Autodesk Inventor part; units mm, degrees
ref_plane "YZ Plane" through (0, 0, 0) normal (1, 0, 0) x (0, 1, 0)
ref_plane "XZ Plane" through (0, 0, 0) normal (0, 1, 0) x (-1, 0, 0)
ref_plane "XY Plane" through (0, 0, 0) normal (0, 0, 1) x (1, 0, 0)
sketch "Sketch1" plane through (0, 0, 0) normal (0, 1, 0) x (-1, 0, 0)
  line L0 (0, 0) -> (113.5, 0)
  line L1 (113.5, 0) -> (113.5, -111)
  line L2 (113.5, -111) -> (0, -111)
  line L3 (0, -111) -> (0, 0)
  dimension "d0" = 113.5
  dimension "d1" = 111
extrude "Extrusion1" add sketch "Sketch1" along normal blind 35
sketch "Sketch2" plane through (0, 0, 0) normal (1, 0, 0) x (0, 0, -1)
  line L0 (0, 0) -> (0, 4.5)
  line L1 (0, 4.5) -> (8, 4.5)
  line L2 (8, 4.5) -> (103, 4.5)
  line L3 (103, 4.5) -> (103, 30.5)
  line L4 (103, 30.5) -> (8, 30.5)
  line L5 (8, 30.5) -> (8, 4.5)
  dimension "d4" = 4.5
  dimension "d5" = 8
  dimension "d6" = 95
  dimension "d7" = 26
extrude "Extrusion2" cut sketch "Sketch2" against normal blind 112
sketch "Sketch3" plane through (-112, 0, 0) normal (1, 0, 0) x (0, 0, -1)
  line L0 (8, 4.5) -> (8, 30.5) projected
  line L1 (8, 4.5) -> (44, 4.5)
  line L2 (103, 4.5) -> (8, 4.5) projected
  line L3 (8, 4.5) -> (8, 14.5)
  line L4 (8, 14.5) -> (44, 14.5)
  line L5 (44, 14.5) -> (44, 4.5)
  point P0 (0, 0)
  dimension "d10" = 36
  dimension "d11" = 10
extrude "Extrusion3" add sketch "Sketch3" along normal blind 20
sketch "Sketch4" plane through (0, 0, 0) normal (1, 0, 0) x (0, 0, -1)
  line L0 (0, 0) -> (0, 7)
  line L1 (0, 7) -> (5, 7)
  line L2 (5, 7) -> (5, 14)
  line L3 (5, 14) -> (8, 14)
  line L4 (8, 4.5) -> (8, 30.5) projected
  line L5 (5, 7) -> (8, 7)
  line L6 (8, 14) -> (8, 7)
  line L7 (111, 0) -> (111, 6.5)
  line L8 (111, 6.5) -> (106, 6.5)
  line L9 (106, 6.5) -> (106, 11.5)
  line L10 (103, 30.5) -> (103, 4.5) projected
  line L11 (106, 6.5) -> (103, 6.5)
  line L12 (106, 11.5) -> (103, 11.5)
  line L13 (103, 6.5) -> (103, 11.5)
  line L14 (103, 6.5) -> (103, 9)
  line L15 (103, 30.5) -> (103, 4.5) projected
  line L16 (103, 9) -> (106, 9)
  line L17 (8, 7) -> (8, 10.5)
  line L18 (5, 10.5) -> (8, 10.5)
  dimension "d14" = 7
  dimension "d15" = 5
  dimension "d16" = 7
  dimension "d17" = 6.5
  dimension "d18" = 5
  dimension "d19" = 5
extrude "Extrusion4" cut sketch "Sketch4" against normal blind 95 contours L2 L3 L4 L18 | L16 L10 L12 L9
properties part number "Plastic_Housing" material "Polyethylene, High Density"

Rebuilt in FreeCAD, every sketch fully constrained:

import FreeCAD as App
import Part
import Sketcher
from FreeCAD import Vector
Q = App.Units.Quantity

doc = App.newDocument("Part")
body = doc.addObject("PartDesign::Body", "Body")

# Sketch on XZ plane
sketch1 = doc.addObject("Sketcher::SketchObject", "Sketch")
body.addObject(sketch1)
sketch1.AttachmentSupport = (doc.XZ_Plane, [""])
sketch1.MapMode = "FlatFace"
sketch1.addGeometry(Part.LineSegment(Vector(-114, 0, 0), Vector(0, 0, 0)), False)
sketch1.addGeometry(Part.LineSegment(Vector(0, 0, 0), Vector(0, -111, 0)), False)
sketch1.addGeometry(Part.LineSegment(Vector(0, -111, 0), Vector(-114, -111, 0)), False)
sketch1.addGeometry(Part.LineSegment(Vector(-114, -111, 0), Vector(-114, 0, 0)), False)
sketch1.addConstraint(Sketcher.Constraint("Coincident", 0, 2, 1, 1))
sketch1.addConstraint(Sketcher.Constraint("Coincident", 1, 2, 2, 1))
sketch1.addConstraint(Sketcher.Constraint("Coincident", 2, 2, 3, 1))
sketch1.addConstraint(Sketcher.Constraint("Coincident", 3, 2, 0, 1))
sketch1.addConstraint(Sketcher.Constraint("Horizontal", 0))
sketch1.addConstraint(Sketcher.Constraint("Vertical", 1))
sketch1.addConstraint(Sketcher.Constraint("Horizontal", 2))
sketch1.addConstraint(Sketcher.Constraint("Vertical", 3))
sketch1.addConstraint(Sketcher.Constraint("Coincident", 0, 2, -1, 1))
sketch1.addConstraint(Sketcher.Constraint("DistanceY", 1, 2, 1, 1, Q("111 mm")))
sketch1.addConstraint(Sketcher.Constraint("DistanceX", 0, 1, 0, 2, Q("113.5 mm")))
pad1 = doc.addObject("PartDesign::Pad", "Pad")
body.addObject(pad1)
pad1.Profile = sketch1
pad1.Length = 35
pad1.Reversed = True

# Sketch on YZ plane
sketch2 = doc.addObject("Sketcher::SketchObject", "Sketch001")
body.addObject(sketch2)
sketch2.AttachmentSupport = (doc.YZ_Plane, [""])
sketch2.MapMode = "FlatFace"
sketch2.addGeometry(Part.LineSegment(Vector(30, -8, 0), Vector(4, -8, 0)), False)
sketch2.addGeometry(Part.LineSegment(Vector(4, -8, 0), Vector(4, -103, 0)), False)
sketch2.addGeometry(Part.LineSegment(Vector(4, -103, 0), Vector(30, -103, 0)), False)
sketch2.addGeometry(Part.LineSegment(Vector(30, -103, 0), Vector(30, -8, 0)), False)
sketch2.addConstraint(Sketcher.Constraint("Coincident", 0, 2, 1, 1))
sketch2.addConstraint(Sketcher.Constraint("Coincident", 1, 2, 2, 1))
sketch2.addConstraint(Sketcher.Constraint("Coincident", 2, 2, 3, 1))
sketch2.addConstraint(Sketcher.Constraint("Coincident", 3, 2, 0, 1))
sketch2.addConstraint(Sketcher.Constraint("Horizontal", 0))
sketch2.addConstraint(Sketcher.Constraint("Vertical", 1))
sketch2.addConstraint(Sketcher.Constraint("Horizontal", 2))
sketch2.addConstraint(Sketcher.Constraint("Vertical", 3))
sketch2.addConstraint(Sketcher.Constraint("DistanceX", 0, 2, 0, 1, Q("26 mm")))
sketch2.addConstraint(Sketcher.Constraint("DistanceY", 1, 2, 1, 1, Q("95 mm")))
sketch2.addConstraint(Sketcher.Constraint("DistanceY", 0, 2, -1, 1, Q("8 mm")))
sketch2.addConstraint(Sketcher.Constraint("DistanceX", -1, 1, 0, 2, Q("4.5 mm")))
pocket1 = doc.addObject("PartDesign::Pocket", "Pocket")
body.addObject(pocket1)
pocket1.Profile = sketch2
pocket1.Length = 112

# Sketch on YZ plane
sketch3 = doc.addObject("Sketcher::SketchObject", "Sketch002")
body.addObject(sketch3)
sketch3.AttachmentSupport = (doc.YZ_Plane, [""])
sketch3.MapMode = "FlatFace"
sketch3.AttachmentOffset = App.Placement(Vector(0, 0, -112), App.Rotation())
sketch3.addGeometry(Part.LineSegment(Vector(14, -8, 0), Vector(4, -8, 0)), False)
sketch3.addGeometry(Part.LineSegment(Vector(4, -8, 0), Vector(4, -44, 0)), False)
sketch3.addGeometry(Part.LineSegment(Vector(4, -44, 0), Vector(14, -44, 0)), False)
sketch3.addGeometry(Part.LineSegment(Vector(14, -44, 0), Vector(14, -8, 0)), False)
sketch3.addConstraint(Sketcher.Constraint("Coincident", 0, 2, 1, 1))
sketch3.addConstraint(Sketcher.Constraint("Coincident", 1, 2, 2, 1))
sketch3.addConstraint(Sketcher.Constraint("Coincident", 2, 2, 3, 1))
sketch3.addConstraint(Sketcher.Constraint("Coincident", 3, 2, 0, 1))
sketch3.addConstraint(Sketcher.Constraint("Horizontal", 0))
sketch3.addConstraint(Sketcher.Constraint("Vertical", 1))
sketch3.addConstraint(Sketcher.Constraint("Horizontal", 2))
sketch3.addConstraint(Sketcher.Constraint("Vertical", 3))
sketch3.addConstraint(Sketcher.Constraint("DistanceX", 0, 2, 0, 1, Q("10 mm")))
sketch3.addConstraint(Sketcher.Constraint("DistanceY", 1, 2, 1, 1, Q("36 mm")))
sketch3.addConstraint(Sketcher.Constraint("DistanceY", 0, 2, -1, 1, Q("8 mm")))
sketch3.addConstraint(Sketcher.Constraint("DistanceX", -1, 1, 0, 2, Q("4.5 mm")))
pad2 = doc.addObject("PartDesign::Pad", "Pad001")
body.addObject(pad2)
pad2.Profile = sketch3
pad2.Length = 20

# Sketch on YZ plane
sketch4 = doc.addObject("Sketcher::SketchObject", "Sketch003")
body.addObject(sketch4)
sketch4.AttachmentSupport = (doc.YZ_Plane, [""])
sketch4.MapMode = "FlatFace"
sketch4.addGeometry(Part.LineSegment(Vector(14, -5, 0), Vector(10.5, -5, 0)), False)
sketch4.addGeometry(Part.LineSegment(Vector(10.5, -5, 0), Vector(10.5, -8, 0)), False)
sketch4.addGeometry(Part.LineSegment(Vector(10.5, -8, 0), Vector(14, -8, 0)), False)
sketch4.addGeometry(Part.LineSegment(Vector(14, -8, 0), Vector(14, -5, 0)), False)
sketch4.addGeometry(Part.LineSegment(Vector(9, -103, 0), Vector(9, -106, 0)), False)
sketch4.addGeometry(Part.LineSegment(Vector(9, -106, 0), Vector(11.5, -106, 0)), False)
sketch4.addGeometry(Part.LineSegment(Vector(11.5, -106, 0), Vector(11.5, -103, 0)), False)
sketch4.addGeometry(Part.LineSegment(Vector(11.5, -103, 0), Vector(9, -103, 0)), False)
sketch4.addConstraint(Sketcher.Constraint("Coincident", 0, 2, 1, 1))
sketch4.addConstraint(Sketcher.Constraint("Coincident", 1, 2, 2, 1))
sketch4.addConstraint(Sketcher.Constraint("Coincident", 2, 2, 3, 1))
sketch4.addConstraint(Sketcher.Constraint("Coincident", 3, 2, 0, 1))
sketch4.addConstraint(Sketcher.Constraint("Coincident", 4, 2, 5, 1))
sketch4.addConstraint(Sketcher.Constraint("Coincident", 5, 2, 6, 1))
sketch4.addConstraint(Sketcher.Constraint("Coincident", 6, 2, 7, 1))
sketch4.addConstraint(Sketcher.Constraint("Coincident", 7, 2, 4, 1))
sketch4.addConstraint(Sketcher.Constraint("Horizontal", 0))
sketch4.addConstraint(Sketcher.Constraint("Vertical", 1))
sketch4.addConstraint(Sketcher.Constraint("Horizontal", 2))
sketch4.addConstraint(Sketcher.Constraint("Vertical", 3))
sketch4.addConstraint(Sketcher.Constraint("Vertical", 4))
sketch4.addConstraint(Sketcher.Constraint("Horizontal", 5))
sketch4.addConstraint(Sketcher.Constraint("Vertical", 6))
sketch4.addConstraint(Sketcher.Constraint("Horizontal", 7))
sketch4.addConstraint(Sketcher.Constraint("Equal", 3, 4))
sketch4.addConstraint(Sketcher.Constraint("DistanceY", 0, 2, -1, 1, Q("5 mm")))
sketch4.addConstraint(Sketcher.Constraint("DistanceX", 4, 2, 2, 2, Q("5 mm")))
sketch4.addConstraint(Sketcher.Constraint("DistanceY", 1, 2, 1, 1, Q("3 mm")))
sketch4.addConstraint(Sketcher.Constraint("DistanceX", 0, 2, 0, 1, Q("3.5 mm")))
sketch4.addConstraint(Sketcher.Constraint("DistanceX", 5, 1, 5, 2, Q("2.5 mm")))
sketch4.addConstraint(Sketcher.Constraint("DistanceX", -1, 1, 2, 2, Q("14 mm")))
sketch4.addConstraint(Sketcher.Constraint("DistanceY", 4, 2, -1, 1, Q("106 mm")))
pocket2 = doc.addObject("PartDesign::Pocket", "Pocket001")
body.addObject(pocket2)
pocket2.Profile = sketch4
pocket2.Length = 95

doc.recompute()
